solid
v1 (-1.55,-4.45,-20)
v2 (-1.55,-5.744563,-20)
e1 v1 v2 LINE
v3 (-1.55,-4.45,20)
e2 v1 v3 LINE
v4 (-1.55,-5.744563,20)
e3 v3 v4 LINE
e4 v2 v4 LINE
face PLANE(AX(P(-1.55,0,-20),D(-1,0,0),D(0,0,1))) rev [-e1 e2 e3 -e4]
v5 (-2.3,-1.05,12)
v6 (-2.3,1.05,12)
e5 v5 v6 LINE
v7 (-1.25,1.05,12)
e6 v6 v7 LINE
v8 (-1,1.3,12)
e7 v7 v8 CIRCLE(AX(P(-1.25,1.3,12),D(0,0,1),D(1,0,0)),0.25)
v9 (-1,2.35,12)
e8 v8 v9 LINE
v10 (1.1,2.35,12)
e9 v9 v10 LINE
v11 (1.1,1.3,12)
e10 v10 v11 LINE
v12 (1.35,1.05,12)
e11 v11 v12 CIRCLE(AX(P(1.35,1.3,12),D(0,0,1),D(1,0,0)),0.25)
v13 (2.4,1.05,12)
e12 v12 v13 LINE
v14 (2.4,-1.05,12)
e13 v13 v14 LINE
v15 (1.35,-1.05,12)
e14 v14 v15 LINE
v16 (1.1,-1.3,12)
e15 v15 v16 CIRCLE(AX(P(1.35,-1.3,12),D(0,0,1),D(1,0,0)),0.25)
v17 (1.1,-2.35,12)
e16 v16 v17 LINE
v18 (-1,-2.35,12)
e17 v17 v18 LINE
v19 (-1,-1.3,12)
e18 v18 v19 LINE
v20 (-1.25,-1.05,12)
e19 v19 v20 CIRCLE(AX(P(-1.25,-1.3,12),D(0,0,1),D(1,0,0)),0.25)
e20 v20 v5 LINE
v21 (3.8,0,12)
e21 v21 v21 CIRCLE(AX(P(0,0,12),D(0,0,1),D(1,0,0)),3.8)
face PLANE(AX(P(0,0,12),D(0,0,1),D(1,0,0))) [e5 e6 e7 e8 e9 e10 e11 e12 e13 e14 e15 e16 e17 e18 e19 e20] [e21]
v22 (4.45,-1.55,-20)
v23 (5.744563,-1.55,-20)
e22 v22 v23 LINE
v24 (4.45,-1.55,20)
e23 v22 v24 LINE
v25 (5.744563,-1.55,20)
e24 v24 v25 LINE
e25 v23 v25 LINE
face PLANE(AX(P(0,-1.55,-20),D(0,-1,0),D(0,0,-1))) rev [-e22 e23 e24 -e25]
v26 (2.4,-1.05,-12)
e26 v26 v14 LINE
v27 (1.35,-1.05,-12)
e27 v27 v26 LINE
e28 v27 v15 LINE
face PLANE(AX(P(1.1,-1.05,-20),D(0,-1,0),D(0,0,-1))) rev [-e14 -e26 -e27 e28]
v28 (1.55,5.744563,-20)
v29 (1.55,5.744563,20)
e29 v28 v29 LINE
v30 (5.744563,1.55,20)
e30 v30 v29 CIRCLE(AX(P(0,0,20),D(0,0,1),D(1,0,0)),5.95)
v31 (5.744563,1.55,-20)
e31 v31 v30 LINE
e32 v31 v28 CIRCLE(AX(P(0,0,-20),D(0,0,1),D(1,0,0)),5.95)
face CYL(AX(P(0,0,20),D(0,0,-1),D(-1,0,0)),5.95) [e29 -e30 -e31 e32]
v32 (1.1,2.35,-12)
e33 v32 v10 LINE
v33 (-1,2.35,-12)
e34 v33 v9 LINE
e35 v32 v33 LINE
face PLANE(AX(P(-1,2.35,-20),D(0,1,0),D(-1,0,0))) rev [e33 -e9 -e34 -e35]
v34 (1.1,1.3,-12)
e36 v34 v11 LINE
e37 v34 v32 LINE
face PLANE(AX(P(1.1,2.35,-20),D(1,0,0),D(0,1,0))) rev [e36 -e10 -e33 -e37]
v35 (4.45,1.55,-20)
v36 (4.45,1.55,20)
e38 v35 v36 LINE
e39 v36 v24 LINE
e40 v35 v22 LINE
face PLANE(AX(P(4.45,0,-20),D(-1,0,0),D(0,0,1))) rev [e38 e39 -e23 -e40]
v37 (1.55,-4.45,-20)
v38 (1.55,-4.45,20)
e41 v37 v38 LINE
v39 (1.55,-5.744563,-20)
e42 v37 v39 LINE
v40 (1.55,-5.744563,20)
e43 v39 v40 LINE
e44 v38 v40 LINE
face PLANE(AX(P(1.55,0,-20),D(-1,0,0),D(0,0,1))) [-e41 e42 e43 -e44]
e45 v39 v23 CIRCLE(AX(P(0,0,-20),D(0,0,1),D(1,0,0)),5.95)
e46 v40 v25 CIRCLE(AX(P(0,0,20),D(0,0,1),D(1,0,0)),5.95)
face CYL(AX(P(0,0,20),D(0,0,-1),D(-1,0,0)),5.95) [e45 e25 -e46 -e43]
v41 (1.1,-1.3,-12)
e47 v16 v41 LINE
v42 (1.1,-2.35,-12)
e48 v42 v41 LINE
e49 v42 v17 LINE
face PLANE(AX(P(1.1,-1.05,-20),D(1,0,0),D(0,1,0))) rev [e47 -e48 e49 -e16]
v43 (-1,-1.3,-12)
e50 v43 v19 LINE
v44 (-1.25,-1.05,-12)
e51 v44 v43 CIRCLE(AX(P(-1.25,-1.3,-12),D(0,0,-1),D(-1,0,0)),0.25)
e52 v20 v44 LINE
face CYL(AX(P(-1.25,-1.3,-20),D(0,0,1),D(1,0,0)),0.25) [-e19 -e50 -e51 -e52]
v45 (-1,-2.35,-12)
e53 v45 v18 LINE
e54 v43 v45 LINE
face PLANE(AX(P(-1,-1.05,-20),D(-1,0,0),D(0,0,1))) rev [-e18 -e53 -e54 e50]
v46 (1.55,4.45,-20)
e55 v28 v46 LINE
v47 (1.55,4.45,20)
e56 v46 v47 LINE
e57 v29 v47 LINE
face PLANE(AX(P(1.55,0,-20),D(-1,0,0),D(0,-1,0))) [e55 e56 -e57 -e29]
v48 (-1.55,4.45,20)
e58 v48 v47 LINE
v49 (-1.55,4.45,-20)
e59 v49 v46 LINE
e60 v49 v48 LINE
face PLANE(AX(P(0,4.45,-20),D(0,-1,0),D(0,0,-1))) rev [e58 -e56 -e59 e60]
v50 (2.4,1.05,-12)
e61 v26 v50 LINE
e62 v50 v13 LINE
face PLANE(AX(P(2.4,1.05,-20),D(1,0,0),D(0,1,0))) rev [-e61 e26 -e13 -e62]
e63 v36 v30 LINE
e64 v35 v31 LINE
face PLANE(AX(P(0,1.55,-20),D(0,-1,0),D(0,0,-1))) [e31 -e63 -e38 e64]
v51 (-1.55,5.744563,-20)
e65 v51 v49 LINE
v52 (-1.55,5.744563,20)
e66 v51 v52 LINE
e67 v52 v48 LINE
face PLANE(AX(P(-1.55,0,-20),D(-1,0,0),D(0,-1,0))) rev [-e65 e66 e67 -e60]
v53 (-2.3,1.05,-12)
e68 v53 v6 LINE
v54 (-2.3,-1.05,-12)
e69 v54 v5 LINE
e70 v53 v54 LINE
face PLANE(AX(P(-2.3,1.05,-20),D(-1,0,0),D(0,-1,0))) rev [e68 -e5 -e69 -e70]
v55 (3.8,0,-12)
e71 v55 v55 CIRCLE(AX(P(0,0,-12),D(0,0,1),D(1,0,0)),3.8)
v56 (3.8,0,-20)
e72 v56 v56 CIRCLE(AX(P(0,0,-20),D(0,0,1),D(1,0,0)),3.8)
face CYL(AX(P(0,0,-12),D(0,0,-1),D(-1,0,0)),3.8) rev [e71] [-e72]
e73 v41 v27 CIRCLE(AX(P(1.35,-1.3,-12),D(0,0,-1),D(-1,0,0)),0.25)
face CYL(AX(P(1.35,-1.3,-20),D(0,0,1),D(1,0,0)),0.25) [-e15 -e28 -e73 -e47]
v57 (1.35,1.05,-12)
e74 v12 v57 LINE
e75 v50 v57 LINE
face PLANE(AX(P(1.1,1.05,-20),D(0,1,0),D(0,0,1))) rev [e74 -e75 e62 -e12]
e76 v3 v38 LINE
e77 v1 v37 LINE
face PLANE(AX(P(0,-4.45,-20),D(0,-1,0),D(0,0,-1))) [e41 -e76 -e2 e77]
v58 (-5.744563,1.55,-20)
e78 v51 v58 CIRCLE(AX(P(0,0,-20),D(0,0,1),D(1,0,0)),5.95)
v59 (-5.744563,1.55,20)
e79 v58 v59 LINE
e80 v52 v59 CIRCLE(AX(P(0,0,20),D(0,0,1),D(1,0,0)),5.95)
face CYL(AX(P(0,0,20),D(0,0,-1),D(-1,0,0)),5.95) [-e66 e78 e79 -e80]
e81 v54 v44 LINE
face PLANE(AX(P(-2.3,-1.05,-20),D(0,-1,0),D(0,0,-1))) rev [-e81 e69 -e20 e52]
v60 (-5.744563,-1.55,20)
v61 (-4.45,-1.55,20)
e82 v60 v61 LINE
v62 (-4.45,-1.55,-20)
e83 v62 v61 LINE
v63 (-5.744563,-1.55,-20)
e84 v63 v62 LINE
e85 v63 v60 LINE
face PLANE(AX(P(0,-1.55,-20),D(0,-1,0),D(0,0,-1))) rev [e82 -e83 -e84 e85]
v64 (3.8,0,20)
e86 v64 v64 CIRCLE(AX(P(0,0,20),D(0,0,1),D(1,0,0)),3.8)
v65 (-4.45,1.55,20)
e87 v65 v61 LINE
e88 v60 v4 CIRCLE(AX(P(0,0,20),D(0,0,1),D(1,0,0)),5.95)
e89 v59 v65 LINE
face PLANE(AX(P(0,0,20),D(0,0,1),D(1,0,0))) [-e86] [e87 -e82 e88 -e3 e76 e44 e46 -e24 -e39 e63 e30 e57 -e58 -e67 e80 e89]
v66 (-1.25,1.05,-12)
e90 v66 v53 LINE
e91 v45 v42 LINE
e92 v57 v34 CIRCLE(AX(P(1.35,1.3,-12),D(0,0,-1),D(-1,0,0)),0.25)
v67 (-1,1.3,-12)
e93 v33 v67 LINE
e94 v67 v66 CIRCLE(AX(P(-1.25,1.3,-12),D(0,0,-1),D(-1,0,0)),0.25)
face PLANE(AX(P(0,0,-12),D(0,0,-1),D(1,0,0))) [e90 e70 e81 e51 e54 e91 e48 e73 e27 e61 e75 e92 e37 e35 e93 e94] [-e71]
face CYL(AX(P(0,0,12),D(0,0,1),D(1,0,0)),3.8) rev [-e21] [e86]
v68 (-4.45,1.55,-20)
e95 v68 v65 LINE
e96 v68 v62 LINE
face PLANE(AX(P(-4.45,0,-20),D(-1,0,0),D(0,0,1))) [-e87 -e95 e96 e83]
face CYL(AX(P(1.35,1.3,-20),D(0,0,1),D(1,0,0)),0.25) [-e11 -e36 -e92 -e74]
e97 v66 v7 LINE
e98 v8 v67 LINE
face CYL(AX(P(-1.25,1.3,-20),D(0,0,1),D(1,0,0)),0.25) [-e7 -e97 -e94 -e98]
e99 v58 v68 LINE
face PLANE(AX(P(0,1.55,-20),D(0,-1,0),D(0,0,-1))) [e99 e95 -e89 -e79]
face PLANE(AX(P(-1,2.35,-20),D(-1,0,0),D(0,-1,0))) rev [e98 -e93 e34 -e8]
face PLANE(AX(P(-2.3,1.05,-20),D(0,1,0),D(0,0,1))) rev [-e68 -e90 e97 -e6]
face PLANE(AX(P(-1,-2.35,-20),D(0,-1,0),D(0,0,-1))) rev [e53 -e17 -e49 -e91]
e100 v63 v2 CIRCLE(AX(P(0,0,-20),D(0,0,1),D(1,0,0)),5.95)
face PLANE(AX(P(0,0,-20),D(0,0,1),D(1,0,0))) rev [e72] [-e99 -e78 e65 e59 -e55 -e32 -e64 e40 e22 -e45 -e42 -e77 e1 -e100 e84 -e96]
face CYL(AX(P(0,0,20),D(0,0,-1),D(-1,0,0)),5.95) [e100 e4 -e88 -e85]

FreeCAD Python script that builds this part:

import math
import FreeCAD as App
import Part
import Sketcher
from FreeCAD import Vector


def edges_at(feature, points):
    """Names of the edges that pass closest to the given points."""
    edges = feature.Shape.Edges
    near = lambda p: min(range(len(edges)), key=lambda i: edges[i].distToShape(Part.Vertex(*p))[0])
    return sorted({f"Edge{near(p) + 1}" for p in points})

doc = App.newDocument("Part")
body = doc.addObject("PartDesign::Body", "Body")

sketch1 = body.newObject("Sketcher::SketchObject", "Sketch")
sketch1.AttachmentSupport = (doc.getObject("XY_Plane"), [""])
sketch1.MapMode = "FlatFace"
sketch1.addGeometry(Part.Circle(Vector(0, 0, 0), Vector(0, 0, 1), 6), False)
sketch1.addConstraint([
    Sketcher.Constraint("Coincident", 0, 3, -1, 1),
    Sketcher.Constraint("Diameter", 0, 11.9),
])
pad1 = body.newObject("PartDesign::Pad", "Pad")
pad1.Profile = sketch1
pad1.Length = 40
pad1.Midplane = True

sketch2 = body.newObject("Sketcher::SketchObject", "Sketch001")
sketch2.AttachmentSupport = (doc.getObject("XY_Plane"), [""])
sketch2.MapMode = "FlatFace"
sketch2.AttachmentOffset = App.Placement(Vector(0, 0, 20), App.Rotation())
sketch2.addGeometry([
    Part.LineSegment(Vector(2.4, 1.1, 0), Vector(1.1, 1.1, 0)),
    Part.LineSegment(Vector(1.1, 1.1, 0), Vector(1.1, 2.4, 0)),
    Part.LineSegment(Vector(1.1, 2.4, 0), Vector(-1, 2.4, 0)),
    Part.LineSegment(Vector(-1, 2.4, 0), Vector(-1, 1.1, 0)),
    Part.LineSegment(Vector(-1, 1.1, 0), Vector(-2.3, 1.1, 0)),
    Part.LineSegment(Vector(-2.3, 1.1, 0), Vector(-2.3, -1.1, 0)),
    Part.LineSegment(Vector(-2.3, -1.1, 0), Vector(-1, -1.1, 0)),
    Part.LineSegment(Vector(-1, -1.1, 0), Vector(-1, -2.4, 0)),
    Part.LineSegment(Vector(-1, -2.4, 0), Vector(1.1, -2.4, 0)),
    Part.LineSegment(Vector(1.1, -2.4, 0), Vector(1.1, -1.1, 0)),
    Part.LineSegment(Vector(1.1, -1.1, 0), Vector(2.4, -1.1, 0)),
    Part.LineSegment(Vector(2.4, -1.1, 0), Vector(2.4, 1.1, 0)),
], False)
sketch2.addConstraint([
    Sketcher.Constraint("Coincident", 0, 2, 1, 1),
    Sketcher.Constraint("Coincident", 1, 2, 2, 1),
    Sketcher.Constraint("Coincident", 2, 2, 3, 1),
    Sketcher.Constraint("Coincident", 3, 2, 4, 1),
    Sketcher.Constraint("Coincident", 4, 2, 5, 1),
    Sketcher.Constraint("Coincident", 5, 2, 6, 1),
    Sketcher.Constraint("Coincident", 6, 2, 7, 1),
    Sketcher.Constraint("Coincident", 7, 2, 8, 1),
    Sketcher.Constraint("Coincident", 8, 2, 9, 1),
    Sketcher.Constraint("Coincident", 9, 2, 10, 1),
    Sketcher.Constraint("Coincident", 10, 2, 11, 1),
    Sketcher.Constraint("Coincident", 11, 2, 0, 1),
    Sketcher.Constraint("Horizontal", 0),
    Sketcher.Constraint("Vertical", 1),
    Sketcher.Constraint("Horizontal", 2),
    Sketcher.Constraint("Vertical", 3),
    Sketcher.Constraint("Horizontal", 4),
    Sketcher.Constraint("Vertical", 5),
    Sketcher.Constraint("Horizontal", 6),
    Sketcher.Constraint("Vertical", 7),
    Sketcher.Constraint("Horizontal", 8),
    Sketcher.Constraint("Vertical", 9),
    Sketcher.Constraint("Horizontal", 10),
    Sketcher.Constraint("Vertical", 11),
    Sketcher.Constraint("Symmetric", 3, 2, 6, 2, -1),
    Sketcher.Constraint("Symmetric", 1, 2, 8, 2, -1),
    Sketcher.Constraint("Horizontal", 0, 2, 3, 2),
    Sketcher.Constraint("Horizontal", 6, 2, 9, 2),
    Sketcher.Constraint("Equal", 0, 4),
    Sketcher.Constraint("Equal", 10, 1),
    Sketcher.Constraint("Equal", 8, 5),
    Sketcher.Constraint("DistanceX", 0, 2, 0, 1, 1.3),
    Sketcher.Constraint("DistanceX", 2, 2, 2, 1, 2.1),
    Sketcher.Constraint("DistanceX", 2, 2, -1, 1, 1.0),
])
pocket1 = body.newObject("PartDesign::Pocket", "Pocket")
pocket1.Profile = sketch2
pocket1.Type = "ThroughAll"

sketch3 = body.newObject("Sketcher::SketchObject", "Sketch002")
sketch3.AttachmentSupport = (doc.getObject("XY_Plane"), [""])
sketch3.MapMode = "FlatFace"
sketch3.AttachmentOffset = App.Placement(Vector(0, 0, 20), App.Rotation())
sketch3.addGeometry([
    Part.ArcOfCircle(Part.Circle(Vector(0, 0, 0), Vector(0, 0, 1), 6), math.radians(75), math.radians(105)),
    Part.LineSegment(Vector(-1.6, 5.7, 0), Vector(-1.6, 4.5, 0)),
    Part.LineSegment(Vector(-1.6, 4.5, 0), Vector(1.6, 4.5, 0)),
    Part.LineSegment(Vector(1.6, 4.5, 0), Vector(1.6, 5.7, 0)),
    Part.ArcOfCircle(Part.Circle(Vector(0, 0, 0), Vector(0, 0, 1), 6), math.radians(0), math.radians(15.1)),
    Part.LineSegment(Vector(5.7, 1.6, 0), Vector(4.5, 1.6, 0)),
    Part.LineSegment(Vector(4.5, 1.6, 0), Vector(4.5, -1.6, 0)),
    Part.LineSegment(Vector(4.5, -1.6, 0), Vector(5.7, -1.6, 0)),
    Part.ArcOfCircle(Part.Circle(Vector(0, 0, 0), Vector(0, 0, 1), 6), math.radians(-15.1), math.radians(0)),
    Part.LineSegment(Vector(-4.5, 1.6, 0), Vector(-5.7, 1.6, 0)),
    Part.ArcOfCircle(Part.Circle(Vector(0, 0, 0), Vector(0, 0, 1), 6), math.radians(165), math.radians(195)),
    Part.LineSegment(Vector(-5.7, -1.6, 0), Vector(-4.5, -1.6, 0)),
    Part.LineSegment(Vector(-4.5, -1.6, 0), Vector(-4.5, 1.6, 0)),
    Part.LineSegment(Vector(-1.6, -4.5, 0), Vector(-1.6, -5.7, 0)),
    Part.ArcOfCircle(Part.Circle(Vector(0, 0, 0), Vector(0, 0, 1), 6), math.radians(-105), math.radians(-75)),
    Part.LineSegment(Vector(1.6, -5.7, 0), Vector(1.6, -4.5, 0)),
    Part.LineSegment(Vector(1.6, -4.5, 0), Vector(-1.6, -4.5, 0)),
], False)
sketch3.addConstraint([
    Sketcher.Constraint("Coincident", 0, 2, 1, 1),
    Sketcher.Constraint("Coincident", 1, 2, 2, 1),
    Sketcher.Constraint("Coincident", 2, 2, 3, 1),
    Sketcher.Constraint("Coincident", 3, 2, 0, 1),
    Sketcher.Constraint("Coincident", 4, 2, 5, 1),
    Sketcher.Constraint("Coincident", 5, 2, 6, 1),
    Sketcher.Constraint("Coincident", 6, 2, 7, 1),
    Sketcher.Constraint("Coincident", 7, 2, 8, 1),
    Sketcher.Constraint("Tangent", 8, 2, 4, 1),
    Sketcher.Constraint("Coincident", 9, 2, 10, 1),
    Sketcher.Constraint("Coincident", 10, 2, 11, 1),
    Sketcher.Constraint("Coincident", 11, 2, 12, 1),
    Sketcher.Constraint("Coincident", 12, 2, 9, 1),
    Sketcher.Constraint("Coincident", 13, 2, 14, 1),
    Sketcher.Constraint("Coincident", 14, 2, 15, 1),
    Sketcher.Constraint("Coincident", 15, 2, 16, 1),
    Sketcher.Constraint("Coincident", 16, 2, 13, 1),
    Sketcher.Constraint("Vertical", 1),
    Sketcher.Constraint("Horizontal", 2),
    Sketcher.Constraint("Vertical", 3),
    Sketcher.Constraint("Horizontal", 5),
    Sketcher.Constraint("Vertical", 6),
    Sketcher.Constraint("Horizontal", 7),
    Sketcher.Constraint("Horizontal", 9),
    Sketcher.Constraint("Horizontal", 11),
    Sketcher.Constraint("Vertical", 12),
    Sketcher.Constraint("Vertical", 13),
    Sketcher.Constraint("Vertical", 15),
    Sketcher.Constraint("Horizontal", 16),
    Sketcher.Constraint("Coincident", 0, 3, -1, 1),
    Sketcher.Constraint("Coincident", 4, 3, -1, 1),
    Sketcher.Constraint("Coincident", 10, 3, -1, 1),
    Sketcher.Constraint("Coincident", 14, 3, -1, 1),
    Sketcher.Constraint("Equal", 0, 4),
    Sketcher.Constraint("Equal", 4, 8),
    Sketcher.Constraint("Equal", 8, 10),
    Sketcher.Constraint("Equal", 10, 14),
    Sketcher.Constraint("Symmetric", 5, 2, 11, 2, -1, 1),
    Sketcher.Constraint("Symmetric", 1, 2, 15, 2, -1, 1),
    Sketcher.Constraint("PointOnObject", 8, 2, -1),
    Sketcher.Constraint("Horizontal", 0, 2, 3, 2),
    Sketcher.Constraint("Horizontal", 5, 2, 9, 2),
    Sketcher.Constraint("Horizontal", 7, 2, 10, 2),
    Sketcher.Constraint("Horizontal", 13, 2, 14, 2),
    Sketcher.Constraint("Equal", 11, 1),
    Sketcher.Constraint("Equal", 16, 6),
    Sketcher.Constraint("Radius", 0, 5.95),
    Sketcher.Constraint("DistanceX", 2, 1, 2, 2, 3.1),
    Sketcher.Constraint("DistanceY", 4, 2, 2, 2, 2.9),
])
pocket2 = body.newObject("PartDesign::Pocket", "Pocket001")
pocket2.Profile = sketch3
pocket2.Type = "ThroughAll"

sketch4 = body.newObject("Sketcher::SketchObject", "Sketch003")
sketch4.AttachmentSupport = (doc.getObject("XY_Plane"), [""])
sketch4.MapMode = "FlatFace"
sketch4.AttachmentOffset = App.Placement(Vector(0, 0, 20), App.Rotation())
sketch4.addGeometry(Part.Circle(Vector(0, 0, 0), Vector(0, 0, 1), 3.8), False)
sketch4.addConstraint([
    Sketcher.Constraint("Coincident", 0, 3, -1, 1),
    Sketcher.Constraint("Diameter", 0, 7.6),
])
pocket3 = body.newObject("PartDesign::Pocket", "Pocket002")
pocket3.Profile = sketch4
pocket3.Length = 8
doc.recompute()

mirrored = body.newObject("PartDesign::Mirrored", "Mirrored")
mirrored.Originals = [pocket3]
mirrored.MirrorPlane = (doc.getObject("XY_Plane"), [""])
body.Tip = mirrored
doc.recompute()

fillet = body.newObject("PartDesign::Fillet", "Fillet")
fillet.Base = (mirrored, edges_at(mirrored, [
    (1.1, -1.05, 0),
    (1.1, 1.05, 0),
    (-1, 1.05, 0),
    (-1, -1.05, 0),
]))
fillet.Radius = 0.25

doc.recompute()
